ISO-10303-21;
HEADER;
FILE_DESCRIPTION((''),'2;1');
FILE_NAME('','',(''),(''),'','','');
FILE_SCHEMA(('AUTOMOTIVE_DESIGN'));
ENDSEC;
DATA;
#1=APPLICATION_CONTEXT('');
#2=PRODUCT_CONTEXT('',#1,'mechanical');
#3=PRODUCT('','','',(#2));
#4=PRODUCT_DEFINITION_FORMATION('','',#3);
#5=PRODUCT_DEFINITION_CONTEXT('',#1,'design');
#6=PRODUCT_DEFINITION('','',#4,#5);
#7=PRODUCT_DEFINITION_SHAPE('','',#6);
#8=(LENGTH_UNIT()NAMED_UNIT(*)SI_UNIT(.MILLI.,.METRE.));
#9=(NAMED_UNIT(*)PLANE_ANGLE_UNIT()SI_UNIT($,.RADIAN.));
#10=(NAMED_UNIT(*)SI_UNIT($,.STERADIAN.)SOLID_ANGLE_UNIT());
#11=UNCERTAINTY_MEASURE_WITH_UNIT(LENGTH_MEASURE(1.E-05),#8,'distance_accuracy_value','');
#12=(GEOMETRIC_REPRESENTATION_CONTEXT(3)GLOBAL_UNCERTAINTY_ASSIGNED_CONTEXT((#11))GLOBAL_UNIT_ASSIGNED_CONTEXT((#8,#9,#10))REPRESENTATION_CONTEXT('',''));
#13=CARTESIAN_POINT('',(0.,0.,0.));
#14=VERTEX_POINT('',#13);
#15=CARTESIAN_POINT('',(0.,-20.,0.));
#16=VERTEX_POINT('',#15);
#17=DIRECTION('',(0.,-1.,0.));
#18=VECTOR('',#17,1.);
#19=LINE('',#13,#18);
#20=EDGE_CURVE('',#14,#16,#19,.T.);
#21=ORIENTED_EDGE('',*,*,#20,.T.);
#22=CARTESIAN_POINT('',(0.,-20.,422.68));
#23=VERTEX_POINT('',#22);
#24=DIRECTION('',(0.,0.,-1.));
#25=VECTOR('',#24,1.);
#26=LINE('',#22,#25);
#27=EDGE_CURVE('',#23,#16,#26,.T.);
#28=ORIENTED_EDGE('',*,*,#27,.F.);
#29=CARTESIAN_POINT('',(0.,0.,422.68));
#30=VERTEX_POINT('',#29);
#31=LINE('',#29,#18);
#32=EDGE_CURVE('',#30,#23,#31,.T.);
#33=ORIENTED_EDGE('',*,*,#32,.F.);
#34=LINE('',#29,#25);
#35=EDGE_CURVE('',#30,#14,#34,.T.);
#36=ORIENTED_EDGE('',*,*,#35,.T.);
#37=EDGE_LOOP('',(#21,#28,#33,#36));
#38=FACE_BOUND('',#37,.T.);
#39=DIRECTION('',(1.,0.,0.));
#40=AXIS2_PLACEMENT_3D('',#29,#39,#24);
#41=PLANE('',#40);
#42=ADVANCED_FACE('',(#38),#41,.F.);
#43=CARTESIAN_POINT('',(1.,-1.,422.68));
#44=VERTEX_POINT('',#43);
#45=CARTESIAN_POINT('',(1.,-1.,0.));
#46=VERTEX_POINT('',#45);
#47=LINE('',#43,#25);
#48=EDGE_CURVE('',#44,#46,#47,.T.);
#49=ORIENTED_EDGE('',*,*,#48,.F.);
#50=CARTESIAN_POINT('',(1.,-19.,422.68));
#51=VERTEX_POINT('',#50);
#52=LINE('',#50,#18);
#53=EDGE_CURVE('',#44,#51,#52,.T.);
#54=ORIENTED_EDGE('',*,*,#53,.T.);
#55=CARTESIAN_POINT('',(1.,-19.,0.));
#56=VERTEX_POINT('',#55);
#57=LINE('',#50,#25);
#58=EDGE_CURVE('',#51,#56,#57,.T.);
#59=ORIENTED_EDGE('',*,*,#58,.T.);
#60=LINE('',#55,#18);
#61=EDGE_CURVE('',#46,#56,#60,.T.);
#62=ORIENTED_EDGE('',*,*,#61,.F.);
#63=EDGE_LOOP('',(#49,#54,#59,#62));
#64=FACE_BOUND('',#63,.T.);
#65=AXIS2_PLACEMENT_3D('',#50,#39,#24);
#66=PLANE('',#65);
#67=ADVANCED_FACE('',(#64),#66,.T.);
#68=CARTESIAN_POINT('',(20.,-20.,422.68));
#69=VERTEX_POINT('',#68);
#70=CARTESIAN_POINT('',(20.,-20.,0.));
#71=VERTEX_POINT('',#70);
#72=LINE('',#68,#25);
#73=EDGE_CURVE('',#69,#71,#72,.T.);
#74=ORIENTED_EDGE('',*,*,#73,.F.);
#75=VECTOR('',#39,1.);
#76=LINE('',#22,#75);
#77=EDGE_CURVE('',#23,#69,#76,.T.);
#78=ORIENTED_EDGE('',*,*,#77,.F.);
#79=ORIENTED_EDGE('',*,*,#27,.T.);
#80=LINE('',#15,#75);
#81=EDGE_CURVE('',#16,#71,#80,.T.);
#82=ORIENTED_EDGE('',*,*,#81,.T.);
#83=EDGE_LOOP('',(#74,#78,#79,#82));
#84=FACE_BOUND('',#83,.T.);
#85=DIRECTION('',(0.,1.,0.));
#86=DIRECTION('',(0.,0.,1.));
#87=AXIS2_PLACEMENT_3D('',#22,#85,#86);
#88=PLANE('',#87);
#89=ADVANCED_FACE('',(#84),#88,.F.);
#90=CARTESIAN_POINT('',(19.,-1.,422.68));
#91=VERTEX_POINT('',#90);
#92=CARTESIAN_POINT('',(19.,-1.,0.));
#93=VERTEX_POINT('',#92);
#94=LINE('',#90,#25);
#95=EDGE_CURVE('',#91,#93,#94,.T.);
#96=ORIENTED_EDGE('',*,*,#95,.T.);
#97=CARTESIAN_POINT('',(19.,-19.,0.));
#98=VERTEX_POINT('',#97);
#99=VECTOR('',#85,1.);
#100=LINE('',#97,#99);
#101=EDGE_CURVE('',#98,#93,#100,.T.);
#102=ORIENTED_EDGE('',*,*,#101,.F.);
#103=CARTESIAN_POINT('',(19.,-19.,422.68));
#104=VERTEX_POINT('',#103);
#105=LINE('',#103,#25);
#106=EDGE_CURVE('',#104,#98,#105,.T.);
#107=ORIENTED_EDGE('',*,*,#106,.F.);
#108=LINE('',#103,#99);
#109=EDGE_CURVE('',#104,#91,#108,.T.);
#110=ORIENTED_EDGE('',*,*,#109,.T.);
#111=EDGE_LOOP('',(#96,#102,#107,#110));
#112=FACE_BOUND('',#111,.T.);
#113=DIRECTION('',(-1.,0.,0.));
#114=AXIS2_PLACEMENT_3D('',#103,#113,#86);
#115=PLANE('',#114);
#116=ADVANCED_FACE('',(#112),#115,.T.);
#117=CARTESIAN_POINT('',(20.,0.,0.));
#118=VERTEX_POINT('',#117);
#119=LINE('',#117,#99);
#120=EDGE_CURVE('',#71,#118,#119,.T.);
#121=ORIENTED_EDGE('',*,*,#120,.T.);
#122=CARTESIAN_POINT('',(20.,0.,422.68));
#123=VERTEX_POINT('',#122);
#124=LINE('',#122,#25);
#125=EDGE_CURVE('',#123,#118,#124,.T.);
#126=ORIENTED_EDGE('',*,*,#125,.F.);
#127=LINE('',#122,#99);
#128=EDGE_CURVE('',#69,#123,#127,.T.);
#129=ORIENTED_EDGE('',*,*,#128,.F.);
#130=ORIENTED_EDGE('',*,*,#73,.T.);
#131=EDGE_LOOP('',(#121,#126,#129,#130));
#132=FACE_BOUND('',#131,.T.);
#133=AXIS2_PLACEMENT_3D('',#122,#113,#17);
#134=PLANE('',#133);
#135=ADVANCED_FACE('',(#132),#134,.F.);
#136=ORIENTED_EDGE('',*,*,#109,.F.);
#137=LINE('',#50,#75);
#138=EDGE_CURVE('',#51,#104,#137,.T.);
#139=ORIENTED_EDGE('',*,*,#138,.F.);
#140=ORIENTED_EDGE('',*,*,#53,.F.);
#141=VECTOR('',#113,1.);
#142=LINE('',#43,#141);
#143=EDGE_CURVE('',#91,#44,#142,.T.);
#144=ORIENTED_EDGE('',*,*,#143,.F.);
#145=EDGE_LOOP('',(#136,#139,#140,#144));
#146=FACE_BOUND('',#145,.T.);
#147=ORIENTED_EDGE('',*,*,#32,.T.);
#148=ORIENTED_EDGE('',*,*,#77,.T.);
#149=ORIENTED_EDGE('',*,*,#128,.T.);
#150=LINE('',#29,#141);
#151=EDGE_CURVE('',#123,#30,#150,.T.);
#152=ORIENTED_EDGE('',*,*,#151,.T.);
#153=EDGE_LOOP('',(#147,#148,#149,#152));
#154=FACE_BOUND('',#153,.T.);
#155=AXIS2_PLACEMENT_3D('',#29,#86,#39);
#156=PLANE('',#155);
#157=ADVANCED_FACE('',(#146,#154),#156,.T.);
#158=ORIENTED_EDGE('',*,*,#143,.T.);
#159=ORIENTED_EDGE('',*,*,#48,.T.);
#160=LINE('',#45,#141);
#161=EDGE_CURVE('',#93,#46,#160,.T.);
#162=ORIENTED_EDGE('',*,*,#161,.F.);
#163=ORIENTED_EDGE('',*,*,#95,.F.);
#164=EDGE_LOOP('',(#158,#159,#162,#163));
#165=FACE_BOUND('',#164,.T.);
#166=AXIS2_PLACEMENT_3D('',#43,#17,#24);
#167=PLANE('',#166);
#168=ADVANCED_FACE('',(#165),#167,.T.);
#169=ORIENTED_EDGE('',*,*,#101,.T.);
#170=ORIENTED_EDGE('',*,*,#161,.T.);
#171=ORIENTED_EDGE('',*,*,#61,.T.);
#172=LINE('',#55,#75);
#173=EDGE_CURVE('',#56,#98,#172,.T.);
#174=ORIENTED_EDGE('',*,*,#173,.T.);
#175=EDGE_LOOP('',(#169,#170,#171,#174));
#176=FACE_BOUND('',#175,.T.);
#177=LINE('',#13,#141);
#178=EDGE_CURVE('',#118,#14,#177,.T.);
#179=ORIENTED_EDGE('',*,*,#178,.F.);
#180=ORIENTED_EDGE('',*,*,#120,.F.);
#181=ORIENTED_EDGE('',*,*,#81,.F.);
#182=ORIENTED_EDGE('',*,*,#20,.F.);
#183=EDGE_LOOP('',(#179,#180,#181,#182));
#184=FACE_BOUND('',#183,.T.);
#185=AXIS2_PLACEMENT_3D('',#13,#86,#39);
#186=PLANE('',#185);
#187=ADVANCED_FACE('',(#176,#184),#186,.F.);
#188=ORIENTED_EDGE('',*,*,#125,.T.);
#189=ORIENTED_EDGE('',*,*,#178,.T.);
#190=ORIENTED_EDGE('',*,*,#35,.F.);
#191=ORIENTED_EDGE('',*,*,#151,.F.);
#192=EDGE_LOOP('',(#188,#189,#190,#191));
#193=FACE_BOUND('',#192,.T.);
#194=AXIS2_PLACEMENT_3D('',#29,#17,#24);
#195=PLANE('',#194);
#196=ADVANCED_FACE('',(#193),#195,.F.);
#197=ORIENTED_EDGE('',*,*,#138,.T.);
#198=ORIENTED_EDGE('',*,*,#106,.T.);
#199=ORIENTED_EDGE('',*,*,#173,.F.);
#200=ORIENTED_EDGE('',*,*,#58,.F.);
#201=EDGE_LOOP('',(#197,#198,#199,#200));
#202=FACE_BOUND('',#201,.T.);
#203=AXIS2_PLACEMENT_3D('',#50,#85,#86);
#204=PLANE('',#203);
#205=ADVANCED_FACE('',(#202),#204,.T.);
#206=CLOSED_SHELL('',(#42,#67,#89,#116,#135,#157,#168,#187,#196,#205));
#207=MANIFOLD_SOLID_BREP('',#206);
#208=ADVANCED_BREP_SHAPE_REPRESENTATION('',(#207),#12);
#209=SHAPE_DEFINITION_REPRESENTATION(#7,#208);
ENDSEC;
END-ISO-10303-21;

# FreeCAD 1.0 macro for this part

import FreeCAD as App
import Part
import Sketcher

V = App.Vector


def add_polygon(sketch, points):
    """Adds a closed chain of lines whose ends are joined by coincident constraints."""
    first, n = sketch.GeometryCount, len(points)
    for a, b in zip(points, points[1:] + points[:1]):
        sketch.addGeometry(Part.LineSegment(App.Vector(*a, 0), App.Vector(*b, 0)), False)
    for i in range(n):
        sketch.addConstraint(Sketcher.Constraint("Coincident", first + i, 2, first + (i + 1) % n, 1))

doc = App.newDocument("Part")
params = doc.addObject("Spreadsheet::Sheet", "Params")
for row, (alias, value) in enumerate([
    ("sketch1_width", "20 mm"),
    ("sketch1_width2", "18 mm"),
    ("pad1_length", "422.68 mm"),
], start=1):
    params.set(f"A{row}", alias)
    params.set(f"B{row}", "=" + value)
    params.setAlias(f"B{row}", alias)

body = doc.addObject("PartDesign::Body", "Body")

# Sketch on XY plane
sketch1 = doc.addObject("Sketcher::SketchObject", "Sketch")
body.addObject(sketch1)
sketch1.AttachmentSupport = (doc.XY_Plane, [""])
sketch1.MapMode = "FlatFace"
add_polygon(sketch1, [(0, 0), (0, -20), (20, -20), (20, 0)])  # lines 0-3
add_polygon(sketch1, [(19, -19), (1, -19), (1, -1), (19, -1)])  # lines 4-7
sketch1.addConstraint([
    Sketcher.Constraint("Vertical", 0),
    Sketcher.Constraint("Horizontal", 1),
    Sketcher.Constraint("Vertical", 2),
    Sketcher.Constraint("Horizontal", 3),
    Sketcher.Constraint("Horizontal", 4),
    Sketcher.Constraint("Vertical", 5),
    Sketcher.Constraint("Horizontal", 6),
    Sketcher.Constraint("Vertical", 7),
    Sketcher.Constraint("Coincident", 3, 2, -1, 1),
    Sketcher.Constraint("Equal", 3, 0),
    Sketcher.Constraint("Equal", 6, 5),
    Sketcher.Constraint("DistanceX", 1, 1, 1, 2, 20.0),
    Sketcher.Constraint("DistanceX", 4, 2, 4, 1, 18.0),
    Sketcher.Constraint("DistanceX", -1, 1, 4, 2, 1.0),
    Sketcher.Constraint("DistanceY", 4, 2, -1, 1, 19.0),
])
sketch1.setExpression("Constraints[19]", "Params.sketch1_width")
sketch1.setExpression("Constraints[20]", "Params.sketch1_width2")
pad1 = doc.addObject("PartDesign::Pad", "Pad")
body.addObject(pad1)
pad1.Profile = sketch1
pad1.setExpression("Length", "Params.pad1_length")

doc.recompute()
